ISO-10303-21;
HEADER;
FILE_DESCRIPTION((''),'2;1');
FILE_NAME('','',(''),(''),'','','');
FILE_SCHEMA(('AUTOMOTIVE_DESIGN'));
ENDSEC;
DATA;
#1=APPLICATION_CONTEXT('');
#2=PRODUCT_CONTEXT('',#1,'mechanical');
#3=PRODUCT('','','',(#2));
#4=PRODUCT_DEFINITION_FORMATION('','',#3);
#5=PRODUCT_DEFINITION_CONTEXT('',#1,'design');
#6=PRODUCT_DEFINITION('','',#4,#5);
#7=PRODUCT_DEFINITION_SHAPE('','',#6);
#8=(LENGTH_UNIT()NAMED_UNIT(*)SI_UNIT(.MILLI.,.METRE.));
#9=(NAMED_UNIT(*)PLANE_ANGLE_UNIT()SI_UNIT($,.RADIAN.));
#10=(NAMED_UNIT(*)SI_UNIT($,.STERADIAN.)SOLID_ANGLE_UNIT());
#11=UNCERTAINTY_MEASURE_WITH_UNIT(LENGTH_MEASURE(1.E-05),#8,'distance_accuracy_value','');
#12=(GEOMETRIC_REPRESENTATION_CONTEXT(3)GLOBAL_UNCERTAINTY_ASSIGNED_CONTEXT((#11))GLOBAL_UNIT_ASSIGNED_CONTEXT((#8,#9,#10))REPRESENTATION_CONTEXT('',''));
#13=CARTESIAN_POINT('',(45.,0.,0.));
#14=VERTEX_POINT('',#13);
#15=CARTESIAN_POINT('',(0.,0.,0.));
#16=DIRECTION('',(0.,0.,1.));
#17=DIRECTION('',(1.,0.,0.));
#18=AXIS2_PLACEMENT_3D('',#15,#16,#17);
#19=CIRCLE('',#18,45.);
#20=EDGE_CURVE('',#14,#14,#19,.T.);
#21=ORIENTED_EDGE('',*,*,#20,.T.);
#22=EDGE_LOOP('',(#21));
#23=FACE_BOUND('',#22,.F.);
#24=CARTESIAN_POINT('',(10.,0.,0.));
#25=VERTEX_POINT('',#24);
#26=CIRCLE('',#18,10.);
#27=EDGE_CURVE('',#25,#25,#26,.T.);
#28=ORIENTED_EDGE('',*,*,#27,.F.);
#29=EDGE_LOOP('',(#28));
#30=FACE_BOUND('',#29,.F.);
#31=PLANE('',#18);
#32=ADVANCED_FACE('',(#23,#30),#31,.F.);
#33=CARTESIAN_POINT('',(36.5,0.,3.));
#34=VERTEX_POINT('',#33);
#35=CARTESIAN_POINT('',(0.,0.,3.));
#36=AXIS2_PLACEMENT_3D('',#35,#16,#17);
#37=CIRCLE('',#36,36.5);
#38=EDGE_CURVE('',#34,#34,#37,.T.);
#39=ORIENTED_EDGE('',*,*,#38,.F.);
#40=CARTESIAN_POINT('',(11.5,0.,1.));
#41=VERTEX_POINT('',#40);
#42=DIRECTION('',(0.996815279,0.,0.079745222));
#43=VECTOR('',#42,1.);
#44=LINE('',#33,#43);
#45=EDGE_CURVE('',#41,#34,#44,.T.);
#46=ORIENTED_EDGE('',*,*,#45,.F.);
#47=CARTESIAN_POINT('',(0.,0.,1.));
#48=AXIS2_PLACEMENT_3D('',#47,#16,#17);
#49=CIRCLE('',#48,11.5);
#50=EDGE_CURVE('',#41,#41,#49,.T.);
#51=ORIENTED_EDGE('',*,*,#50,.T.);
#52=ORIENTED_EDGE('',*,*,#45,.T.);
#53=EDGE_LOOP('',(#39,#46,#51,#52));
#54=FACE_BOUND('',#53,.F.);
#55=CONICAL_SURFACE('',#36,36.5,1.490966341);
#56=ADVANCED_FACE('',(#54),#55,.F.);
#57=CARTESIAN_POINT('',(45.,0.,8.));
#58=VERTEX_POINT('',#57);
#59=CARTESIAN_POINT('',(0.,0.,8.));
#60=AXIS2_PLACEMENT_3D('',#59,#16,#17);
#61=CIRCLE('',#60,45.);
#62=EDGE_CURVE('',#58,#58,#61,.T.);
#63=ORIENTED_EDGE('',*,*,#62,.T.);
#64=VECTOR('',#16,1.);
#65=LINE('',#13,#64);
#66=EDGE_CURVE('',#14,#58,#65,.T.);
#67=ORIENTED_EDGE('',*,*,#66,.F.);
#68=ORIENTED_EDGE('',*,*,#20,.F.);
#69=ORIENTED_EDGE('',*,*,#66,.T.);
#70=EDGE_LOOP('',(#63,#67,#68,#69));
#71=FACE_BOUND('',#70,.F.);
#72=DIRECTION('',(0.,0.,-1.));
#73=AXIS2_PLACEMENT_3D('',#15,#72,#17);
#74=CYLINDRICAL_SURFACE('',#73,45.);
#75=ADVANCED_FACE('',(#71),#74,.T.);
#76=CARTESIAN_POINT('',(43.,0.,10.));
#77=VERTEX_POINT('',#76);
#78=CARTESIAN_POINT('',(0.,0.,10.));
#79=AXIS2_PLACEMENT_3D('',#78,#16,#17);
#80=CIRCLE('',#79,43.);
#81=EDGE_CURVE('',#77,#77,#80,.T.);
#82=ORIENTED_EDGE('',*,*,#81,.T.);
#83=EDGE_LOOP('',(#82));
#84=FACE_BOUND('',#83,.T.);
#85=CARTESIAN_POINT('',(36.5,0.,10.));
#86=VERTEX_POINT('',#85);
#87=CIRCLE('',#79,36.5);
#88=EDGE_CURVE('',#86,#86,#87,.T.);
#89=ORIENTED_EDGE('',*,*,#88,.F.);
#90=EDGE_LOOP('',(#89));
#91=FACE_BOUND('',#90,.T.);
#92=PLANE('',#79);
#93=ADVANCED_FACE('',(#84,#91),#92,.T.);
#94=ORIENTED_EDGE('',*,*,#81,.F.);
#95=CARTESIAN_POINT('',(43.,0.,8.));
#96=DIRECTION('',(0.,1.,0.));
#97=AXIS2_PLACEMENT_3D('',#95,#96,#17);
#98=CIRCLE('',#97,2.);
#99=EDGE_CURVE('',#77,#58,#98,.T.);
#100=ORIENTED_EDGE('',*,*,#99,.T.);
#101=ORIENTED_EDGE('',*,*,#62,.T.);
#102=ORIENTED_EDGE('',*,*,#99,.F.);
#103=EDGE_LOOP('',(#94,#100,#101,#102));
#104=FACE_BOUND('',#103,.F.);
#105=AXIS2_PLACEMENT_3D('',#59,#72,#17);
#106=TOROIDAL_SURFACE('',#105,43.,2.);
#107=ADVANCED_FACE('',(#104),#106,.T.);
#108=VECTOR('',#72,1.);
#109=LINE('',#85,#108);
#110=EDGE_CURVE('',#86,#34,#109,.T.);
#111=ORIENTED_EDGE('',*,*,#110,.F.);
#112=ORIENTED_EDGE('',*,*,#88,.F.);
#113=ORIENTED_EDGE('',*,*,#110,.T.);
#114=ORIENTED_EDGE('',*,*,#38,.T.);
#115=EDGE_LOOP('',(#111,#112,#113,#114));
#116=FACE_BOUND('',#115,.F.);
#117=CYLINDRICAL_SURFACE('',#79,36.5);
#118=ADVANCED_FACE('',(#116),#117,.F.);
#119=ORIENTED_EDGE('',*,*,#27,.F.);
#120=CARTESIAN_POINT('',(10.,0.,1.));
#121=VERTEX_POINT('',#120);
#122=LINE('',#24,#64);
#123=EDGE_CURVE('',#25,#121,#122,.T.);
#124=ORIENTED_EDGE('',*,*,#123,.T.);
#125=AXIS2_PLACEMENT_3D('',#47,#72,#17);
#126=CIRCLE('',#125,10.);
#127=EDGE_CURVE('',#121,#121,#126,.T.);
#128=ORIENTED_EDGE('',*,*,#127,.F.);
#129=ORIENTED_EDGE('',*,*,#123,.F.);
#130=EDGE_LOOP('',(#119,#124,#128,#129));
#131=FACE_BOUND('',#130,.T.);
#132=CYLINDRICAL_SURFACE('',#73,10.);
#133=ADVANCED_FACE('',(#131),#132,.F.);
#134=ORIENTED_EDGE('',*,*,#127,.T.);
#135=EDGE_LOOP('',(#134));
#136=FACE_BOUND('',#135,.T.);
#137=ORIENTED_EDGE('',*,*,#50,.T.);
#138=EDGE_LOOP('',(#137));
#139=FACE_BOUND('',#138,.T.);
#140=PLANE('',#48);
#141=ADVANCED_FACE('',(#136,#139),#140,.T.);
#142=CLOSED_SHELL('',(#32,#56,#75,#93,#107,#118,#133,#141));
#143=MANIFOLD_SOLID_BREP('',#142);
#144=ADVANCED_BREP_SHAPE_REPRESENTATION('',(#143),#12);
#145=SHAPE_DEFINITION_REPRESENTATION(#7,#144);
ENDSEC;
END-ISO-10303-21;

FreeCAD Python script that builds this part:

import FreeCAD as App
import Part
import Sketcher
from FreeCAD import Vector


def edges_at(feature, points):
    """Names of the edges that pass closest to the given points."""
    edges = feature.Shape.Edges
    near = lambda p: min(range(len(edges)), key=lambda i: edges[i].distToShape(Part.Vertex(*p))[0])
    return sorted({f"Edge{near(p) + 1}" for p in points})

doc = App.newDocument("Part")
body = doc.addObject("PartDesign::Body", "Body")

sketch1 = body.newObject("Sketcher::SketchObject", "Sketch")
sketch1.AttachmentSupport = (doc.getObject("XY_Plane"), [""])
sketch1.MapMode = "FlatFace"
sketch1.addGeometry([
    Part.Circle(Vector(0, 0, 0), Vector(0, 0, 1), 45),
    Part.Circle(Vector(0, 0, 0), Vector(0, 0, 1), 10),
], False)
sketch1.addConstraint([
    Sketcher.Constraint("Coincident", 0, 3, -1, 1),
    Sketcher.Constraint("Coincident", 1, 3, -1, 1),
    Sketcher.Constraint("Diameter", 0, 90.0),
    Sketcher.Constraint("Diameter", 1, 20.0),
])
pad1 = body.newObject("PartDesign::Pad", "Pad")
pad1.Profile = sketch1
pad1.Length = 10

sketch2 = body.newObject("Sketcher::SketchObject", "Sketch001")
sketch2.AttachmentSupport = (doc.getObject("XY_Plane"), [""])
sketch2.MapMode = "FlatFace"
sketch2.AttachmentOffset = App.Placement(Vector(0, 0, 10), App.Rotation())
sketch2.addGeometry(Part.Circle(Vector(0, 0, 0), Vector(0, 0, 1), 36), False)
sketch2.addConstraint([
    Sketcher.Constraint("Coincident", 0, 3, -1, 1),
    Sketcher.Constraint("Diameter", 0, 73.0),
])
pocket1 = body.newObject("PartDesign::Pocket", "Pocket")
pocket1.Profile = sketch2
pocket1.Length = 9
doc.recompute()

chamfer = body.newObject("PartDesign::Chamfer", "Chamfer")
chamfer.Base = (pocket1, edges_at(pocket1, [(-36.5, 0, 1)]))
chamfer.ChamferType = "Two distances"
chamfer.Size = 25
chamfer.Size2 = 2
chamfer.FlipDirection = True
doc.recompute()

fillet = body.newObject("PartDesign::Fillet", "Fillet")
fillet.Base = (chamfer, edges_at(chamfer, [(-45, 0, 10)]))
fillet.Radius = 2

doc.recompute()
